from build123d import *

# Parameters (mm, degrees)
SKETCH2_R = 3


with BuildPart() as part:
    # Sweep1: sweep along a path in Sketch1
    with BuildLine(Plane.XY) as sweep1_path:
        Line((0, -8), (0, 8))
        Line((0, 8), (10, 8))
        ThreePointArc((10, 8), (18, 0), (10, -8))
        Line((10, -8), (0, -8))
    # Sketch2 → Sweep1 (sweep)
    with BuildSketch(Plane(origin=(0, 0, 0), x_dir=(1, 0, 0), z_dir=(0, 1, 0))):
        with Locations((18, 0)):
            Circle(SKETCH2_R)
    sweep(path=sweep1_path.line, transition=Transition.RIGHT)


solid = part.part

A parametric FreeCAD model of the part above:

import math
import FreeCAD as App
import Part
import Sketcher
from FreeCAD import Vector
Q = App.Units.Quantity

doc = App.newDocument("Part")
body = doc.addObject("PartDesign::Body", "Body")

sketch1 = body.newObject("Sketcher::SketchObject", "Sketch")
sketch1.AttachmentSupport = (doc.getObject("XZ_Plane"), [""])
sketch1.MapMode = "FlatFace"
sketch1.addGeometry(Part.Circle(Vector(18, 0, 0), Vector(0, 0, 1), 3), False)
sketch1.addConstraint(Sketcher.Constraint("PointOnObject", 0, 3, -1))
sketch1.addConstraint(Sketcher.Constraint("Diameter", 0, Q("6 mm")))
sketch1.addConstraint(Sketcher.Constraint("DistanceX", -1, 1, 0, 3, Q("18 mm")))

sketch2 = body.newObject("Sketcher::SketchObject", "Sketch001")
sketch2.AttachmentSupport = (doc.getObject("XY_Plane"), [""])
sketch2.MapMode = "FlatFace"
sketch2.addGeometry(Part.LineSegment(Vector(0, -8, 0), Vector(0, 8, 0)), False)
sketch2.addGeometry(Part.LineSegment(Vector(0, 8, 0), Vector(10, 8, 0)), False)
sketch2.addGeometry(Part.ArcOfCircle(Part.Circle(Vector(10, 0, 0), Vector(0, 0, 1), 8), math.radians(-90), math.radians(90)), False)
sketch2.addGeometry(Part.LineSegment(Vector(10, -8, 0), Vector(0, -8, 0)), False)
sketch2.addConstraint(Sketcher.Constraint("Coincident", 0, 2, 1, 1))
sketch2.addConstraint(Sketcher.Constraint("Tangent", 1, 2, 2, 2))
sketch2.addConstraint(Sketcher.Constraint("Tangent", 2, 1, 3, 1))
sketch2.addConstraint(Sketcher.Constraint("Coincident", 3, 2, 0, 1))
sketch2.addConstraint(Sketcher.Constraint("Vertical", 0))
sketch2.addConstraint(Sketcher.Constraint("Horizontal", 1))
sketch2.addConstraint(Sketcher.Constraint("Horizontal", 3))
sketch2.addConstraint(Sketcher.Constraint("Symmetric", 0, 2, 3, 2, -1, 1))
sketch2.addConstraint(Sketcher.Constraint("Radius", 2, Q("8 mm")))
sketch2.addConstraint(Sketcher.Constraint("DistanceX", 1, 1, 1, 2, Q("10 mm")))
doc.recompute()

additivepipe = body.newObject("PartDesign::AdditivePipe", "AdditivePipe")
additivepipe.Profile = sketch1
additivepipe.Spine = (sketch2, ["Edge1", "Edge2", "Edge3", "Edge4"])
additivepipe.Transition = "Right corner"

doc.recompute()
